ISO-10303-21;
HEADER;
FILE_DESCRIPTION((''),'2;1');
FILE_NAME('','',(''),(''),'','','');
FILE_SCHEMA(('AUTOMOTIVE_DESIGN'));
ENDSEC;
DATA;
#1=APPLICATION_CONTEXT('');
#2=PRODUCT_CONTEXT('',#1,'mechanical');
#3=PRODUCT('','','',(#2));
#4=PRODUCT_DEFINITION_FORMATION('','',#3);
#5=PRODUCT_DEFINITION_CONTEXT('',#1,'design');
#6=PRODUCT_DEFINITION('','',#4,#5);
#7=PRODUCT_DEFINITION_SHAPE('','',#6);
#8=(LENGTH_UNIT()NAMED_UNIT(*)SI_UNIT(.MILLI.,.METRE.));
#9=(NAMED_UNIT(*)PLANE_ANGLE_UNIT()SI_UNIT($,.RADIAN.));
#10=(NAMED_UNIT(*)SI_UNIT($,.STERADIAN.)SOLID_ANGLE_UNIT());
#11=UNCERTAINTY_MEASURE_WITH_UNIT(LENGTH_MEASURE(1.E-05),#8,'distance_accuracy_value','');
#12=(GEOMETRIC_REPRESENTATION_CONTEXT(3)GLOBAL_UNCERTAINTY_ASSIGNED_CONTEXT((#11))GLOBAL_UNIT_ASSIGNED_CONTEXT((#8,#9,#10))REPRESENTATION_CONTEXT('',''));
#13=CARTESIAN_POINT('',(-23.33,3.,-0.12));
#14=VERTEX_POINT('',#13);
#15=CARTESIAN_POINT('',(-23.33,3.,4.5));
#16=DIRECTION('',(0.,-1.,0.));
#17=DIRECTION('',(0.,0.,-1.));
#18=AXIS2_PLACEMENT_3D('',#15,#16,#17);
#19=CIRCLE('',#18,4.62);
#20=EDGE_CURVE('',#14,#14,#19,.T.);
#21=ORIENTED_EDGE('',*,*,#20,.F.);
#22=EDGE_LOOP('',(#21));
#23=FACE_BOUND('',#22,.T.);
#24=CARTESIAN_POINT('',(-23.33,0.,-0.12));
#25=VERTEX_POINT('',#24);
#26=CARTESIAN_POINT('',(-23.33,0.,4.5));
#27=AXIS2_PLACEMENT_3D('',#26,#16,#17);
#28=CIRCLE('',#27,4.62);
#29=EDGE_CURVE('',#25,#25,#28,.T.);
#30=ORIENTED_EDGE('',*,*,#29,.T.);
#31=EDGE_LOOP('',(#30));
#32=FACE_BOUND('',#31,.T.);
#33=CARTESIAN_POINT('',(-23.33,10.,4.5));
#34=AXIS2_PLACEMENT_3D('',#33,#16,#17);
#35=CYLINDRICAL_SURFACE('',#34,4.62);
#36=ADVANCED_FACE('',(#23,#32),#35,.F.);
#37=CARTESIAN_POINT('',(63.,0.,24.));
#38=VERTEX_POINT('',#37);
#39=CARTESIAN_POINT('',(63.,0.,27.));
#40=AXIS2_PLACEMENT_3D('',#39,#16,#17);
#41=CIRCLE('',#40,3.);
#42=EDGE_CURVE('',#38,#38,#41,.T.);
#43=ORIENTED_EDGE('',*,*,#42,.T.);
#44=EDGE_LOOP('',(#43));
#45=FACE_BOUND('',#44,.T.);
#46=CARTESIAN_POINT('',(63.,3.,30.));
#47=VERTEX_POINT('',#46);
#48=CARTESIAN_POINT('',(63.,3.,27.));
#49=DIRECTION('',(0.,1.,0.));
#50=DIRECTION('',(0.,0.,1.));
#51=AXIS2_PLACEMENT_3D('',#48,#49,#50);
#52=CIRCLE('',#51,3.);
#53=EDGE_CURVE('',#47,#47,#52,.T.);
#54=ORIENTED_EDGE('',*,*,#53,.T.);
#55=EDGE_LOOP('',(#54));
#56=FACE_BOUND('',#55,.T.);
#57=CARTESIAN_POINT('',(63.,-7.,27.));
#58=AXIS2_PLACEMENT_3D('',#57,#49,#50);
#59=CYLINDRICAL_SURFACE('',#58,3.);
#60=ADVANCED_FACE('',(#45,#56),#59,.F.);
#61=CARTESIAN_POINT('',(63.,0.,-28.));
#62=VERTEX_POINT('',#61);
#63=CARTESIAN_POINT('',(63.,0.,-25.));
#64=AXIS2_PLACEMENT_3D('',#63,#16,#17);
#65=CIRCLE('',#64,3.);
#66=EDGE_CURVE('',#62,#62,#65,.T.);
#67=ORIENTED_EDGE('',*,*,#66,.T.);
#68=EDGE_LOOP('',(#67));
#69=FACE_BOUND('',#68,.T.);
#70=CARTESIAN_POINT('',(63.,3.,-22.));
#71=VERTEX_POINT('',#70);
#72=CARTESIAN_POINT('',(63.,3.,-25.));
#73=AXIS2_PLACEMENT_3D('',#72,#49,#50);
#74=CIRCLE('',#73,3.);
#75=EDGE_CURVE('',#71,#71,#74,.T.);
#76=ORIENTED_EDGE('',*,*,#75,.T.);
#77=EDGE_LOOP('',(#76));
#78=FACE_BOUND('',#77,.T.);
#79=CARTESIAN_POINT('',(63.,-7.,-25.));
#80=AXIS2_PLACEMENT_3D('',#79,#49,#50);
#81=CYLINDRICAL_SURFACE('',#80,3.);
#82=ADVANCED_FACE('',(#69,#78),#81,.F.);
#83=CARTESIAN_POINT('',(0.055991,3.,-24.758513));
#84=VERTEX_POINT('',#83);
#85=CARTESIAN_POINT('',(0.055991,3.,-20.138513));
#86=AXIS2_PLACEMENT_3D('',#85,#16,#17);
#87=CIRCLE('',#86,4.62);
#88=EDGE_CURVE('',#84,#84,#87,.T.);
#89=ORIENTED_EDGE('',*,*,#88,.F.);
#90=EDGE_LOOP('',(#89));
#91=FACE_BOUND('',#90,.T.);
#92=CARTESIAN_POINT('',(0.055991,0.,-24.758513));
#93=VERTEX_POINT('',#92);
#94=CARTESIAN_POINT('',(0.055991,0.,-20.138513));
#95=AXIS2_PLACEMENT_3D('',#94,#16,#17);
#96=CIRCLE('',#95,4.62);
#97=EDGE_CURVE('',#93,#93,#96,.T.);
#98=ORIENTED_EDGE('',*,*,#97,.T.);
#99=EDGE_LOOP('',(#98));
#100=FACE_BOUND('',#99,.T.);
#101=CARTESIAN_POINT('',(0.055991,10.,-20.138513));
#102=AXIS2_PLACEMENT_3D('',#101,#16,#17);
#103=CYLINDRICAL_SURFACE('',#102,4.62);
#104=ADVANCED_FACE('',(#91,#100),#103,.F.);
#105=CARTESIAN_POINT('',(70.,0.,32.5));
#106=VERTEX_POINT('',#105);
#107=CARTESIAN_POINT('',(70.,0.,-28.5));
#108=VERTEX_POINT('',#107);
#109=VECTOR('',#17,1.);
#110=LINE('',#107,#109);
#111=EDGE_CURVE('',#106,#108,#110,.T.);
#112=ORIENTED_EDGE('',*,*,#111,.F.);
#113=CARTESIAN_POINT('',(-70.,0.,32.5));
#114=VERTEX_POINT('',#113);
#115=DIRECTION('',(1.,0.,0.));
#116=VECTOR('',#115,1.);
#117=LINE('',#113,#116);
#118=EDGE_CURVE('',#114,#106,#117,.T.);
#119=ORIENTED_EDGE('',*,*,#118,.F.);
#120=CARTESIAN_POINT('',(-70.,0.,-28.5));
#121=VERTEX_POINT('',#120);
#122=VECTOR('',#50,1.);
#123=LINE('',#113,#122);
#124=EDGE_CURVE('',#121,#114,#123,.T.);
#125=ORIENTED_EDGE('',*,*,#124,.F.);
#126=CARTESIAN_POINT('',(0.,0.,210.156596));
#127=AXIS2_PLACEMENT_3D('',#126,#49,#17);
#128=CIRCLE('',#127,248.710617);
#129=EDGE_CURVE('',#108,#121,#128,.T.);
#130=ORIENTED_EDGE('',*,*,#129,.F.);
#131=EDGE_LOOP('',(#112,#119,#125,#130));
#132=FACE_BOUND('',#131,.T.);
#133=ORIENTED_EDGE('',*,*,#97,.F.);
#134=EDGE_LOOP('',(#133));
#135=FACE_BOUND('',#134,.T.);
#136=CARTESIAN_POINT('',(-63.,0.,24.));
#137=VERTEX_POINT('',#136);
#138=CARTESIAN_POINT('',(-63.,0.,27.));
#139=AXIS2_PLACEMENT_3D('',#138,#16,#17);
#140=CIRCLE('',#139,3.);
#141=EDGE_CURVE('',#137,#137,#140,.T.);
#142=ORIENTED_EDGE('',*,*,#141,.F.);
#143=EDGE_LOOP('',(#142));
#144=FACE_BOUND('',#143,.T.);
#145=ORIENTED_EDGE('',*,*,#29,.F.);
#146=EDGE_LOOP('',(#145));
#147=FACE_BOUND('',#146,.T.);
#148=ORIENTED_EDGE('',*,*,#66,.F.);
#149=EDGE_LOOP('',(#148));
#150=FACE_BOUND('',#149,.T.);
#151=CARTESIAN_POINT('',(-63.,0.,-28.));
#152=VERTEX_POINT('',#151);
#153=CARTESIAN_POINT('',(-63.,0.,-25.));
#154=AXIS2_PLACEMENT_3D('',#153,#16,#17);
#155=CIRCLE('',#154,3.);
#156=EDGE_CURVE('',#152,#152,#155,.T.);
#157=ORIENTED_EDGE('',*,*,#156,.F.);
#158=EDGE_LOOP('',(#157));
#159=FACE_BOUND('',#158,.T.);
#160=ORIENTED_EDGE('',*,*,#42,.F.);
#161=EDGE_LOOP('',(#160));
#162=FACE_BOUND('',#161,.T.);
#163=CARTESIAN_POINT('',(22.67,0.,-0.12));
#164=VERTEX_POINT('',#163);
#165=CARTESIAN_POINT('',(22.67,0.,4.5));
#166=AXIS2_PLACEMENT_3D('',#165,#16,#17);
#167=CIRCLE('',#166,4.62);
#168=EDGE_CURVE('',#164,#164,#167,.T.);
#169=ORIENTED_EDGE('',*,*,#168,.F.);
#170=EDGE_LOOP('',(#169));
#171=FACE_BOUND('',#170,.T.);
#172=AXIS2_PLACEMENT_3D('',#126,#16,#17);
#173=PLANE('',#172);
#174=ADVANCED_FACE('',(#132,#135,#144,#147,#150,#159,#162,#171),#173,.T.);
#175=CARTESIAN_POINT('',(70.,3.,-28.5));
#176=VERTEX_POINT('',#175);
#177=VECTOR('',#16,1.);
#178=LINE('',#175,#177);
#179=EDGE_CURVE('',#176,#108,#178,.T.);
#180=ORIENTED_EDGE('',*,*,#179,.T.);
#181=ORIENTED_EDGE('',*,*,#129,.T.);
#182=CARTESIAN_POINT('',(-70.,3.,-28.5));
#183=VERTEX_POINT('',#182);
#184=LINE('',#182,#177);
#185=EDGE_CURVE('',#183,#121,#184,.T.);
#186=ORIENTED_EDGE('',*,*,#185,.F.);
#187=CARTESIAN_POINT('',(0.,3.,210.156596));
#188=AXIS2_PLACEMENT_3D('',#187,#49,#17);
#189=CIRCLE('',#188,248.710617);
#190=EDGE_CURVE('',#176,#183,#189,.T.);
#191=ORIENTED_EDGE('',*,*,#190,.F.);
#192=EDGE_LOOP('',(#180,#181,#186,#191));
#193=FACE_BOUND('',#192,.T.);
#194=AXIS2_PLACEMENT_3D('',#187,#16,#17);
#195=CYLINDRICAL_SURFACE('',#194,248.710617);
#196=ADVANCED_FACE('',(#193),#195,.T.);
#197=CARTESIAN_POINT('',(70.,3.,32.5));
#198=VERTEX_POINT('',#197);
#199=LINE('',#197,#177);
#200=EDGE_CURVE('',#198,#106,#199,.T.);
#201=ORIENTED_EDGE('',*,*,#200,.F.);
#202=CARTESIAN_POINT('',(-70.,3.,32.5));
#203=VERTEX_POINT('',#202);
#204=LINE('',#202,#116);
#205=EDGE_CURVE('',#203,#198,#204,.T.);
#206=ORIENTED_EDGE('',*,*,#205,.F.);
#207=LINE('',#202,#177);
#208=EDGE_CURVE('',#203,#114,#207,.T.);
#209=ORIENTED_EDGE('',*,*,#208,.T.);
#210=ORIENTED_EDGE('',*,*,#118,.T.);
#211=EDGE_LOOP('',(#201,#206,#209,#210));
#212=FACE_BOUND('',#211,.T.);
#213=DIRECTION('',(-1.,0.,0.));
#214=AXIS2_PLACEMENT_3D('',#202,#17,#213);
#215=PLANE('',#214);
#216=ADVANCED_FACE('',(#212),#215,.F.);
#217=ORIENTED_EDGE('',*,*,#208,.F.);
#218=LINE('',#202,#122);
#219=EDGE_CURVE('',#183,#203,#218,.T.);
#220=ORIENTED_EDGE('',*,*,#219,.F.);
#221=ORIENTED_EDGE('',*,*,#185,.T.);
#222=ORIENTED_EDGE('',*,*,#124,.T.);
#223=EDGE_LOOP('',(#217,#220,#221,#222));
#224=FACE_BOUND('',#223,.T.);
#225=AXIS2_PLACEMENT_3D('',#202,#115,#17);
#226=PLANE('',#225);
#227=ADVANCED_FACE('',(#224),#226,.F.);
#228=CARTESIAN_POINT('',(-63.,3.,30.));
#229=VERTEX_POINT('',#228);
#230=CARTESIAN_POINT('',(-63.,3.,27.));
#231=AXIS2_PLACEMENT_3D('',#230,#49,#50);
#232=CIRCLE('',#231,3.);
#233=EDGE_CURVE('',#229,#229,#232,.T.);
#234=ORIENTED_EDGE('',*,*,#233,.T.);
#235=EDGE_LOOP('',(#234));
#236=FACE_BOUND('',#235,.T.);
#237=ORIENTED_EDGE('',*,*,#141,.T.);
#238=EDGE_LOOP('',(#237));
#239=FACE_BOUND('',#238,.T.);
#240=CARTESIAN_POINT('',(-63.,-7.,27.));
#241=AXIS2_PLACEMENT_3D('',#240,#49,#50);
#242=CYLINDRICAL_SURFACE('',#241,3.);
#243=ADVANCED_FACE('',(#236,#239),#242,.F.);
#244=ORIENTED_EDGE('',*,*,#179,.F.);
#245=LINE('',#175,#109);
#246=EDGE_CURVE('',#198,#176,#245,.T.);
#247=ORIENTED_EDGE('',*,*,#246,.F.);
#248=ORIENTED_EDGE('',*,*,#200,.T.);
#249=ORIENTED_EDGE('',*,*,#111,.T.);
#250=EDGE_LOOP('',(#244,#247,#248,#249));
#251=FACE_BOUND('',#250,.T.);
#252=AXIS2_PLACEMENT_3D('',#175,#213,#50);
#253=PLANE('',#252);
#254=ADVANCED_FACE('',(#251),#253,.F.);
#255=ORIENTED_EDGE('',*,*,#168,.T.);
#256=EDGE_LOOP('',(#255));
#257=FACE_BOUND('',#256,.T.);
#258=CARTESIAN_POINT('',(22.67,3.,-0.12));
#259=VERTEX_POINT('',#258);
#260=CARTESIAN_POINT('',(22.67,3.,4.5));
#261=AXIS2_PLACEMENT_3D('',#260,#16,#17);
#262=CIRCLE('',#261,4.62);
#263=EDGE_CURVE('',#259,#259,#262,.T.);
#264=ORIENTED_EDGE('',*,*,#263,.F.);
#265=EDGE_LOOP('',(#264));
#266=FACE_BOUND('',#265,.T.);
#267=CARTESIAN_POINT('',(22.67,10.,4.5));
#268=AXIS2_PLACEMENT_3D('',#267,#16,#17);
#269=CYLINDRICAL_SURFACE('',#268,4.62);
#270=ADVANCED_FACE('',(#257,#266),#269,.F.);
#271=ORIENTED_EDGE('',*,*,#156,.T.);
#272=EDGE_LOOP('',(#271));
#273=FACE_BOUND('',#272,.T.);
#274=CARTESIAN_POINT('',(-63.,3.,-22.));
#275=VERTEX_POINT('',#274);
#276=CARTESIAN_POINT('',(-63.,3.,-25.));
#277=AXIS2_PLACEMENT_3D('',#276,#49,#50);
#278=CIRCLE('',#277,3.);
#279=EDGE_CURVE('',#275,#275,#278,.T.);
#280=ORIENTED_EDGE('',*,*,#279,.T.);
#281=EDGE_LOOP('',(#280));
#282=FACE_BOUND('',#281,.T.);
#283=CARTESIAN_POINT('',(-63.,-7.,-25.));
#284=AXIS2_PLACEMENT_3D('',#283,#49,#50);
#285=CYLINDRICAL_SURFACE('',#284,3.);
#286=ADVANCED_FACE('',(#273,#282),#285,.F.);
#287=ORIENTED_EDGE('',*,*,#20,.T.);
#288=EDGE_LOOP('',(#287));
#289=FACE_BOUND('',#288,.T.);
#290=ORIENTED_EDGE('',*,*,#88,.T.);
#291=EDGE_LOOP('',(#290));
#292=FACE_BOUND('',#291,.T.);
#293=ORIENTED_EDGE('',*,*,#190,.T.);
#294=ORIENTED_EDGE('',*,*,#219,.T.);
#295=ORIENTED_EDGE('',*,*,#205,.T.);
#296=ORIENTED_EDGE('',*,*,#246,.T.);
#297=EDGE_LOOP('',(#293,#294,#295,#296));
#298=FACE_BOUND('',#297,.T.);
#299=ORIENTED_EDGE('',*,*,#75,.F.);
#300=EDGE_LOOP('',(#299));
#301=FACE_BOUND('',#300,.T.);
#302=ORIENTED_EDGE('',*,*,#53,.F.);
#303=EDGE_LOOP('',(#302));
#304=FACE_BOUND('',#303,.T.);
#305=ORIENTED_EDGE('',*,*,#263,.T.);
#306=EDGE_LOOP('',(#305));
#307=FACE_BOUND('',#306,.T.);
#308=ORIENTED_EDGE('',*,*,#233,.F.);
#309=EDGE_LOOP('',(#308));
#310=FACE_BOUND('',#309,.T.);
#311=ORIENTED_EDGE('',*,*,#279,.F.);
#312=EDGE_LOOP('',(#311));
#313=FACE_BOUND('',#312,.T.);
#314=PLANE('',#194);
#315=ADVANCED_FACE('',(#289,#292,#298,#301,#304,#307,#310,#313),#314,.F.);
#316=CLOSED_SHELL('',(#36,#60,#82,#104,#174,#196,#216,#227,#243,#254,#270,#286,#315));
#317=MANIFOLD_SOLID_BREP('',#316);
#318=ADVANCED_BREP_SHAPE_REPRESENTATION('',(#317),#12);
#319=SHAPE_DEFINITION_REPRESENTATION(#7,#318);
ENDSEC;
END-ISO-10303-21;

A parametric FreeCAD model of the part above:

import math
import FreeCAD as App
import Part
import Sketcher

V = App.Vector
Q = App.Units.Quantity

doc = App.newDocument("Part")
body = doc.addObject("PartDesign::Body", "Body")

# Sketch on XZ plane
sketch1 = body.newObject("Sketcher::SketchObject", "Sketch")
sketch1.AttachmentSupport = (doc.getObject("XZ_Plane"), [""])
sketch1.MapMode = "FlatFace"
sketch1.addGeometry([
    Part.LineSegment(V(70, 32, 0), V(70, -28, 0)),
    Part.ArcOfCircle(Part.Circle(V(0, 210, 0), V(0, 0, 1), 249), math.radians(-106), math.radians(-74)),
    Part.LineSegment(V(-70, -28, 0), V(-70, 32, 0)),
    Part.LineSegment(V(-70, 32, 0), V(70, 32, 0)),
], False)
sketch1.addConstraint([
    Sketcher.Constraint("Coincident", 0, 2, 1, 2),
    Sketcher.Constraint("Coincident", 1, 1, 2, 1),
    Sketcher.Constraint("Coincident", 2, 2, 3, 1),
    Sketcher.Constraint("Coincident", 3, 2, 0, 1),
    Sketcher.Constraint("Vertical", 0),
    Sketcher.Constraint("Vertical", 2),
    Sketcher.Constraint("Horizontal", 3),
    Sketcher.Constraint("Symmetric", 0, 2, 1, 1, -2),
    Sketcher.Constraint("DistanceX", 3, 1, 3, 2, Q("140 mm")),
    Sketcher.Constraint("DistanceY", 0, 2, 0, 1, Q("61 mm")),
    Sketcher.Constraint("DistanceY", 0, 2, -1, 1, Q("28.5 mm")),
    Sketcher.Constraint("Radius", 1, Q("248.710617 mm")),
])
pad1 = body.newObject("PartDesign::Pad", "Pad")
pad1.Profile = sketch1
pad1.Length = 3
pad1.Reversed = True

# Sketch on XZ plane
sketch2 = body.newObject("Sketcher::SketchObject", "Sketch001")
sketch2.AttachmentSupport = (doc.getObject("XZ_Plane"), [""])
sketch2.MapMode = "FlatFace"
sketch2.AttachmentOffset = App.Placement(V(0, 0, -3), App.Rotation())
sketch2.addGeometry([
    Part.Circle(V(-63, -25, 0), V(0, 0, 1), 3),
    Part.Circle(V(-63, 27, 0), V(0, 0, 1), 3),
    Part.Circle(V(63, -25, 0), V(0, 0, 1), 3),
    Part.Circle(V(63, 27, 0), V(0, 0, 1), 3),
], False)
sketch2.addConstraint([
    Sketcher.Constraint("Equal", 0, 1),
    Sketcher.Constraint("Equal", 1, 2),
    Sketcher.Constraint("Equal", 2, 3),
    Sketcher.Constraint("Symmetric", 0, 3, 2, 3, -2),
    Sketcher.Constraint("Symmetric", 1, 3, 3, 3, -2),
    Sketcher.Constraint("Vertical", 0, 3, 1, 3),
    Sketcher.Constraint("Diameter", 0, Q("6 mm")),
    Sketcher.Constraint("DistanceX", 0, 3, -1, 1, Q("63 mm")),
    Sketcher.Constraint("DistanceY", 0, 3, -1, 1, Q("25 mm")),
    Sketcher.Constraint("DistanceY", -1, 1, 1, 3, Q("27 mm")),
])
pocket1 = body.newObject("PartDesign::Pocket", "Pocket")
pocket1.Profile = sketch2
pocket1.Length = 10
pocket1.Reversed = True

# Sketch on XZ plane
sketch3 = body.newObject("Sketcher::SketchObject", "Sketch002")
sketch3.AttachmentSupport = (doc.getObject("XZ_Plane"), [""])
sketch3.MapMode = "FlatFace"
sketch3.addGeometry([
    Part.Circle(V(-23.3, 4.5, 0), V(0, 0, 1), 4.6),
    Part.Circle(V(22.7, 4.5, 0), V(0, 0, 1), 4.6),
    Part.Circle(V(0.1, -20.1, 0), V(0, 0, 1), 4.6),
], False)
sketch3.addConstraint([
    Sketcher.Constraint("Equal", 0, 1),
    Sketcher.Constraint("Equal", 1, 2),
    Sketcher.Constraint("Horizontal", 0, 3, 1, 3),
    Sketcher.Constraint("Diameter", 0, Q("9.24 mm")),
    Sketcher.Constraint("DistanceX", 0, 3, 1, 3, Q("46 mm")),
    Sketcher.Constraint("DistanceY", -1, 1, 0, 3, Q("4.5 mm")),
    Sketcher.Constraint("DistanceX", 0, 3, -1, 1, Q("23.33 mm")),
    Sketcher.Constraint("DistanceX", -1, 1, 2, 3, Q("0.055991 mm")),
    Sketcher.Constraint("DistanceY", 2, 3, -1, 1, Q("20.138513 mm")),
])
pocket2 = body.newObject("PartDesign::Pocket", "Pocket001")
pocket2.Profile = sketch3
pocket2.Length = 10

doc.recompute()
